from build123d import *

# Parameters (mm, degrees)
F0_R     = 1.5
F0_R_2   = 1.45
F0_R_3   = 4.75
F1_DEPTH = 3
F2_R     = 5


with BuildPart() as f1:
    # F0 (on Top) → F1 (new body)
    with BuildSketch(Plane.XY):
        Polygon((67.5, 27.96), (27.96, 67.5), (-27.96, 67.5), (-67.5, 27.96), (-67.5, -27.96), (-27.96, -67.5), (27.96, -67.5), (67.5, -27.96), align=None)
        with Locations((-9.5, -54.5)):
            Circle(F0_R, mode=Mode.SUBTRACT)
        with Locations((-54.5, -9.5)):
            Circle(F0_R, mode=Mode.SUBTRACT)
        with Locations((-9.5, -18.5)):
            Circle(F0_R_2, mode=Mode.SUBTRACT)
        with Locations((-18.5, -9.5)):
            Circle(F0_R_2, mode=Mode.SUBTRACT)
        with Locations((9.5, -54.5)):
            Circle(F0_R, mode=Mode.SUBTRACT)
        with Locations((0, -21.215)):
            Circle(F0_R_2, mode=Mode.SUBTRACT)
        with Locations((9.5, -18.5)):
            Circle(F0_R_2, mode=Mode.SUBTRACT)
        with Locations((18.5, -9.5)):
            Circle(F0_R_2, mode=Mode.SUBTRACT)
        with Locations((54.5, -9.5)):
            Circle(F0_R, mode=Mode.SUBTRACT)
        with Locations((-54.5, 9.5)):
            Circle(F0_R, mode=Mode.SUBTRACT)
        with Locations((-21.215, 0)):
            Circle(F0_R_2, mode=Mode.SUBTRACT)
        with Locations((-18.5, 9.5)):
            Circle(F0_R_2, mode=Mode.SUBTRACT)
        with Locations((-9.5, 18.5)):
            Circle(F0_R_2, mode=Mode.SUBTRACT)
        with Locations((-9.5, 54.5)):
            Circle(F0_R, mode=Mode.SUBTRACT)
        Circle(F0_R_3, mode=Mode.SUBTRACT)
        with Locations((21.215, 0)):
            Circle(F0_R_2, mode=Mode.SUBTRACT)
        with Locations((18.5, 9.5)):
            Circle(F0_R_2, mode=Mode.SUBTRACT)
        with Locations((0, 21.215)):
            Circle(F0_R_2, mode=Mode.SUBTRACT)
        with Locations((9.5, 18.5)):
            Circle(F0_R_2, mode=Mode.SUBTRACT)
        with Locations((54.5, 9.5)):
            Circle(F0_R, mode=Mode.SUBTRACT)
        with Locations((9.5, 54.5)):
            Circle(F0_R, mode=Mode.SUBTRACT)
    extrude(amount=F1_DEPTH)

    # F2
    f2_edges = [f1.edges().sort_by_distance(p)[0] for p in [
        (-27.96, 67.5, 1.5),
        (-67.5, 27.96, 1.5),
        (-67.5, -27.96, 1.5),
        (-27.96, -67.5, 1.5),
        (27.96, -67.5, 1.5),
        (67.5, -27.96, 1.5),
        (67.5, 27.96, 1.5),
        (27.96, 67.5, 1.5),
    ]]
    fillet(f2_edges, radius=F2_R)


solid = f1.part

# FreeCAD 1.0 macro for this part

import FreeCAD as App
import Part
import Sketcher
from FreeCAD import Vector


def edges_at(feature, points):
    """Names of the edges that pass closest to the given points."""
    edges = feature.Shape.Edges
    near = lambda p: min(range(len(edges)), key=lambda i: edges[i].distToShape(Part.Vertex(*p))[0])
    return sorted({f"Edge{near(p) + 1}" for p in points})

doc = App.newDocument("Part")
body = doc.addObject("PartDesign::Body", "Body")

# Sketch on XY plane
sketch1 = body.newObject("Sketcher::SketchObject", "Sketch")
sketch1.AttachmentSupport = (doc.getObject("XY_Plane"), [""])
sketch1.MapMode = "FlatFace"
sketch1.addGeometry([
    Part.LineSegment(Vector(67.5, 27.96, 0), Vector(27.96, 67.5, 0)),  # 0
    Part.LineSegment(Vector(27.96, 67.5, 0), Vector(-27.96, 67.5, 0)),  # 1
    Part.LineSegment(Vector(-27.96, 67.5, 0), Vector(-67.5, 27.96, 0)),  # 2
    Part.LineSegment(Vector(-67.5, 27.96, 0), Vector(-67.5, -27.96, 0)),  # 3
    Part.LineSegment(Vector(-67.5, -27.96, 0), Vector(-27.96, -67.5, 0)),  # 4
    Part.LineSegment(Vector(-27.96, -67.5, 0), Vector(27.96, -67.5, 0)),  # 5
    Part.LineSegment(Vector(27.96, -67.5, 0), Vector(67.5, -27.96, 0)),  # 6
    Part.LineSegment(Vector(67.5, -27.96, 0), Vector(67.5, 27.96, 0)),  # 7
    Part.Circle(Vector(-9.5, -54.5, 0), Vector(0, 0, 1), 1.5),  # 8
    Part.Circle(Vector(-54.5, -9.5, 0), Vector(0, 0, 1), 1.5),  # 9
    Part.Circle(Vector(-9.5, -18.5, 0), Vector(0, 0, 1), 1.45),  # 10
    Part.Circle(Vector(-18.5, -9.5, 0), Vector(0, 0, 1), 1.45),  # 11
    Part.Circle(Vector(9.5, -54.5, 0), Vector(0, 0, 1), 1.5),  # 12
    Part.Circle(Vector(0, -21.215, 0), Vector(0, 0, 1), 1.45),  # 13
    Part.Circle(Vector(9.5, -18.5, 0), Vector(0, 0, 1), 1.45),  # 14
    Part.Circle(Vector(18.5, -9.5, 0), Vector(0, 0, 1), 1.45),  # 15
    Part.Circle(Vector(54.5, -9.5, 0), Vector(0, 0, 1), 1.5),  # 16
    Part.Circle(Vector(-54.5, 9.5, 0), Vector(0, 0, 1), 1.5),  # 17
    Part.Circle(Vector(-21.215, 0, 0), Vector(0, 0, 1), 1.45),  # 18
    Part.Circle(Vector(-18.5, 9.5, 0), Vector(0, 0, 1), 1.45),  # 19
    Part.Circle(Vector(-9.5, 18.5, 0), Vector(0, 0, 1), 1.45),  # 20
    Part.Circle(Vector(-9.5, 54.5, 0), Vector(0, 0, 1), 1.5),  # 21
    Part.Circle(Vector(0, 0, 0), Vector(0, 0, 1), 4.75),  # 22
    Part.Circle(Vector(21.215, 0, 0), Vector(0, 0, 1), 1.45),  # 23
    Part.Circle(Vector(18.5, 9.5, 0), Vector(0, 0, 1), 1.45),  # 24
    Part.Circle(Vector(9.5, 18.5, 0), Vector(0, 0, 1), 1.45),  # 25
    Part.Circle(Vector(0, 21.215, 0), Vector(0, 0, 1), 1.45),  # 26
    Part.Circle(Vector(54.5, 9.5, 0), Vector(0, 0, 1), 1.5),  # 27
    Part.Circle(Vector(9.5, 54.5, 0), Vector(0, 0, 1), 1.5),  # 28
], False)
sketch1.addConstraint([
    Sketcher.Constraint("Coincident", 0, 2, 1, 1),
    Sketcher.Constraint("Coincident", 1, 2, 2, 1),
    Sketcher.Constraint("Coincident", 2, 2, 3, 1),
    Sketcher.Constraint("Coincident", 3, 2, 4, 1),
    Sketcher.Constraint("Coincident", 4, 2, 5, 1),
    Sketcher.Constraint("Coincident", 5, 2, 6, 1),
    Sketcher.Constraint("Coincident", 6, 2, 7, 1),
    Sketcher.Constraint("Coincident", 7, 2, 0, 1),
    Sketcher.Constraint("Horizontal", 1),
    Sketcher.Constraint("Vertical", 3),
    Sketcher.Constraint("Horizontal", 5),
    Sketcher.Constraint("Vertical", 7),
    Sketcher.Constraint("Coincident", 22, 3, -1, 1),
    Sketcher.Constraint("Equal", 8, 9),
    Sketcher.Constraint("Equal", 10, 11),
    Sketcher.Constraint("Equal", 9, 12),
    Sketcher.Constraint("Equal", 11, 13),
    Sketcher.Constraint("Equal", 13, 14),
    Sketcher.Constraint("Equal", 14, 15),
    Sketcher.Constraint("Equal", 12, 16),
    Sketcher.Constraint("Equal", 16, 17),
    Sketcher.Constraint("Equal", 15, 18),
    Sketcher.Constraint("Equal", 18, 19),
    Sketcher.Constraint("Equal", 19, 20),
    Sketcher.Constraint("Equal", 17, 21),
    Sketcher.Constraint("Equal", 20, 23),
    Sketcher.Constraint("Equal", 23, 24),
    Sketcher.Constraint("Equal", 24, 25),
    Sketcher.Constraint("Equal", 25, 26),
    Sketcher.Constraint("Equal", 21, 27),
    Sketcher.Constraint("Equal", 27, 28),
    Sketcher.Constraint("Symmetric", 16, 3, 17, 3, -1, 1),
    Sketcher.Constraint("Symmetric", 15, 3, 19, 3, -1, 1),
    Sketcher.Constraint("Symmetric", 14, 3, 20, 3, -1, 1),
    Sketcher.Constraint("Symmetric", 12, 3, 21, 3, -1, 1),
    Sketcher.Constraint("Symmetric", 18, 3, 23, 3, -1, 1),
    Sketcher.Constraint("Symmetric", 11, 3, 24, 3, -1, 1),
    Sketcher.Constraint("Symmetric", 10, 3, 25, 3, -1, 1),
    Sketcher.Constraint("Symmetric", 13, 3, 26, 3, -1, 1),
    Sketcher.Constraint("Symmetric", 9, 3, 27, 3, -1, 1),
    Sketcher.Constraint("Symmetric", 8, 3, 28, 3, -1, 1),
    Sketcher.Constraint("Symmetric", 0, 2, 4, 2, -1, 1),
    Sketcher.Constraint("Symmetric", 2, 2, 6, 2, -1, 1),
    Sketcher.Constraint("Symmetric", 8, 3, 12, 3, -2),
    Sketcher.Constraint("Symmetric", 10, 3, 14, 3, -2),
    Sketcher.Constraint("Symmetric", 11, 3, 15, 3, -2),
    Sketcher.Constraint("Symmetric", 9, 3, 16, 3, -2),
    Sketcher.Constraint("PointOnObject", 13, 3, -2),
    Sketcher.Constraint("PointOnObject", 18, 3, -1),
    Sketcher.Constraint("Perpendicular", 0, 2),
    Sketcher.Constraint("Perpendicular", 2, 4),
    Sketcher.Constraint("Perpendicular", 4, 6),
    Sketcher.Constraint("Horizontal", 9, 3, 11, 3),
    Sketcher.Constraint("Horizontal", 3, 2, 6, 2),
    Sketcher.Constraint("Vertical", 8, 3, 10, 3),
    Sketcher.Constraint("Vertical", 1, 2, 4, 2),
    Sketcher.Constraint("Equal", 5, 3),
    Sketcher.Constraint("Diameter", 8, 3.0),
    Sketcher.Constraint("Diameter", 10, 2.9),
    Sketcher.Constraint("Diameter", 22, 9.5),
    Sketcher.Constraint("DistanceX", 9, 3, 8, 3, 45.0),
    Sketcher.Constraint("DistanceY", 8, 3, 9, 3, 45.0),
    Sketcher.Constraint("DistanceY", 8, 3, 10, 3, 36.0),
    Sketcher.Constraint("DistanceX", 11, 3, 10, 3, 9.0),
    Sketcher.Constraint("DistanceX", 8, 3, 12, 3, 19.0),
    Sketcher.Constraint("DistanceY", 9, 3, 17, 3, 19.0),
    Sketcher.Constraint("DistanceY", 28, 3, 0, 2, 13.0),
    Sketcher.Constraint("DistanceX", 1, 2, 1, 1, 55.92),
    Sketcher.Constraint("DistanceY", 13, 3, -1, 1, 21.215),
    Sketcher.Constraint("DistanceX", 18, 3, -1, 1, 21.215),
])
pad1 = body.newObject("PartDesign::Pad", "Pad")
pad1.Profile = sketch1
pad1.Length = 3
doc.recompute()

fillet = body.newObject("PartDesign::Fillet", "Fillet")
fillet.Base = (pad1, edges_at(pad1, [
    (-27.96, 67.5, 1.5),
    (-67.5, 27.96, 1.5),
    (-67.5, -27.96, 1.5),
    (-27.96, -67.5, 1.5),
    (27.96, -67.5, 1.5),
    (67.5, -27.96, 1.5),
    (67.5, 27.96, 1.5),
    (27.96, 67.5, 1.5),
]))
fillet.Radius = 5

doc.recompute()
